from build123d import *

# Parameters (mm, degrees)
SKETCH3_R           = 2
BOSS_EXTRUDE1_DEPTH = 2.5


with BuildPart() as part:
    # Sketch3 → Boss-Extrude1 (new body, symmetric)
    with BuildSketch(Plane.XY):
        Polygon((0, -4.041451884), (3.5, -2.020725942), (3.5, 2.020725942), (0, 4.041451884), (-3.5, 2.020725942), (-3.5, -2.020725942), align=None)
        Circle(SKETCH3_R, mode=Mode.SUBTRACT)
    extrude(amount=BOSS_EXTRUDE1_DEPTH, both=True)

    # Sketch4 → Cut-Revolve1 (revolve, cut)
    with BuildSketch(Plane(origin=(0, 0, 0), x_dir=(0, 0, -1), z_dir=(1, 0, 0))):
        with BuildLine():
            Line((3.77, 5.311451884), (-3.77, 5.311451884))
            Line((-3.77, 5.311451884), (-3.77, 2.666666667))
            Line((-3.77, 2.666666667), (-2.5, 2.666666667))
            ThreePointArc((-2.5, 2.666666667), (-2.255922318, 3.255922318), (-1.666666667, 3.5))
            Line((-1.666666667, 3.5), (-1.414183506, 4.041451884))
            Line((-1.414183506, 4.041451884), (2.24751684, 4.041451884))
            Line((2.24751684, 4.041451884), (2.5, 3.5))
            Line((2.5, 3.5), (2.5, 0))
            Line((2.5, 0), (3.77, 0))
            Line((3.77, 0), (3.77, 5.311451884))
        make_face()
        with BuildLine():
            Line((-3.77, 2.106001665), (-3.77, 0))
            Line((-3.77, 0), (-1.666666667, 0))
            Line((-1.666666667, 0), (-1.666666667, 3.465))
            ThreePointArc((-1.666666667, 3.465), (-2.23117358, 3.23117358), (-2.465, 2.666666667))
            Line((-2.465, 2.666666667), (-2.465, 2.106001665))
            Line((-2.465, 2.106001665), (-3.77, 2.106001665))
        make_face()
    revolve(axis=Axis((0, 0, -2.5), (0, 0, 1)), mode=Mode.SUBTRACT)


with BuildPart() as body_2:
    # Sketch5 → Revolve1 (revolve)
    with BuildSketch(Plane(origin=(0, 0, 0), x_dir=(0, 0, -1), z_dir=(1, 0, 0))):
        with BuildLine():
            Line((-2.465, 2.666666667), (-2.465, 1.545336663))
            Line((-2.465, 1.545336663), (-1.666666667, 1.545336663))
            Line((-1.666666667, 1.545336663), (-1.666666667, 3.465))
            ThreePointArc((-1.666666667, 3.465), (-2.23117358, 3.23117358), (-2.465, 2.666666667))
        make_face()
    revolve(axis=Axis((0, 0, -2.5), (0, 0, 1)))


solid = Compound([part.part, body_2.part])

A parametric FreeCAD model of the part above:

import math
import FreeCAD as App
import Part
import Sketcher
Q = App.Units.Quantity

doc = App.newDocument("Part")
body = doc.addObject("PartDesign::Body", "Body")

sketch1 = doc.addObject("Sketcher::SketchObject", "Sketch")
body.addObject(sketch1)
sketch1.AttachmentSupport = (doc.XY_Plane, [""])
sketch1.MapMode = "FlatFace"
sketch1.addGeometry([
    Part.LineSegment(App.Vector(0, -4, 0), App.Vector(3.5, -2, 0)),
    Part.LineSegment(App.Vector(3.5, -2, 0), App.Vector(3.5, 2, 0)),
    Part.LineSegment(App.Vector(3.5, 2, 0), App.Vector(0, 4, 0)),
    Part.LineSegment(App.Vector(0, 4, 0), App.Vector(-3.5, 2, 0)),
    Part.LineSegment(App.Vector(-3.5, 2, 0), App.Vector(-3.5, -2, 0)),
    Part.LineSegment(App.Vector(-3.5, -2, 0), App.Vector(0, -4, 0)),
    Part.Circle(App.Vector(0, 0, 0), App.Vector(0, 0, 1), 2),
], False)
sketch1.addConstraint([
    Sketcher.Constraint("Coincident", 0, 2, 1, 1),
    Sketcher.Constraint("Coincident", 1, 2, 2, 1),
    Sketcher.Constraint("Coincident", 2, 2, 3, 1),
    Sketcher.Constraint("Coincident", 3, 2, 4, 1),
    Sketcher.Constraint("Coincident", 4, 2, 5, 1),
    Sketcher.Constraint("Coincident", 5, 2, 0, 1),
    Sketcher.Constraint("Vertical", 1),
    Sketcher.Constraint("Vertical", 4),
    Sketcher.Constraint("Coincident", 6, 3, -1, 1),
    Sketcher.Constraint("Symmetric", 0, 2, 3, 2, -1, 1),
    Sketcher.Constraint("Symmetric", 2, 2, 5, 2, -1, 1),
    Sketcher.Constraint("PointOnObject", 2, 2, -2),
    Sketcher.Constraint("Parallel", 2, 5),
    Sketcher.Constraint("Horizontal", 1, 2, 3, 2),
    Sketcher.Constraint("Diameter", 6, 4.0),
    Sketcher.Constraint("Angle", 0, Q("30 deg")),
    Sketcher.Constraint("DistanceX", 3, 2, 1, 2, 7.0),
    Sketcher.Constraint("DistanceY", 1, 1, 1, 2, 4.041452),
])
pad1 = doc.addObject("PartDesign::Pad", "Pad")
body.addObject(pad1)
pad1.Profile = sketch1
pad1.Length = 5
pad1.Midplane = True

sketch2 = doc.addObject("Sketcher::SketchObject", "Sketch001")
body.addObject(sketch2)
sketch2.AttachmentSupport = (doc.YZ_Plane, [""])
sketch2.MapMode = "FlatFace"
sketch2.addGeometry([
    Part.LineSegment(App.Vector(5.3, -3.8, 0), App.Vector(5.3, 3.8, 0)),
    Part.LineSegment(App.Vector(5.3, 3.8, 0), App.Vector(2.7, 3.8, 0)),
    Part.LineSegment(App.Vector(2.7, 3.8, 0), App.Vector(2.7, 2.5, 0)),
    Part.ArcOfCircle(Part.Circle(App.Vector(2.7, 1.7, 0), App.Vector(0, 0, 1), 0.8), math.radians(0), math.radians(90)),
    Part.LineSegment(App.Vector(3.5, 1.7, 0), App.Vector(4, 1.4, 0)),
    Part.LineSegment(App.Vector(4, 1.4, 0), App.Vector(4, -2.2, 0)),
    Part.LineSegment(App.Vector(4, -2.2, 0), App.Vector(3.5, -2.5, 0)),
    Part.LineSegment(App.Vector(3.5, -2.5, 0), App.Vector(0, -2.5, 0)),
    Part.LineSegment(App.Vector(0, -2.5, 0), App.Vector(0, -3.8, 0)),
    Part.LineSegment(App.Vector(0, -3.8, 0), App.Vector(5.3, -3.8, 0)),
    Part.LineSegment(App.Vector(2.1, 3.8, 0), App.Vector(0, 3.8, 0)),
    Part.LineSegment(App.Vector(0, 3.8, 0), App.Vector(0, 1.7, 0)),
    Part.LineSegment(App.Vector(0, 1.7, 0), App.Vector(3.5, 1.7, 0)),
    Part.ArcOfCircle(Part.Circle(App.Vector(2.7, 1.7, 0), App.Vector(0, 0, 1), 0.8), math.radians(0), math.radians(90)),
    Part.LineSegment(App.Vector(2.7, 2.5, 0), App.Vector(2.1, 2.5, 0)),
    Part.LineSegment(App.Vector(2.1, 2.5, 0), App.Vector(2.1, 3.8, 0)),
], False)
sketch2.addConstraint([
    Sketcher.Constraint("Coincident", 0, 2, 1, 1),
    Sketcher.Constraint("Coincident", 1, 2, 2, 1),
    Sketcher.Constraint("Coincident", 2, 2, 3, 2),
    Sketcher.Constraint("Coincident", 3, 1, 4, 1),
    Sketcher.Constraint("Coincident", 4, 2, 5, 1),
    Sketcher.Constraint("Coincident", 5, 2, 6, 1),
    Sketcher.Constraint("Coincident", 6, 2, 7, 1),
    Sketcher.Constraint("Coincident", 7, 2, 8, 1),
    Sketcher.Constraint("Coincident", 8, 2, 9, 1),
    Sketcher.Constraint("Coincident", 9, 2, 0, 1),
    Sketcher.Constraint("Coincident", 10, 2, 11, 1),
    Sketcher.Constraint("Coincident", 11, 2, 12, 1),
    Sketcher.Constraint("Coincident", 12, 2, 13, 1),
    Sketcher.Constraint("Tangent", 13, 2, 14, 1),
    Sketcher.Constraint("Coincident", 14, 2, 15, 1),
    Sketcher.Constraint("Coincident", 15, 2, 10, 1),
    Sketcher.Constraint("Vertical", 0),
    Sketcher.Constraint("Horizontal", 1),
    Sketcher.Constraint("Vertical", 2),
    Sketcher.Constraint("Vertical", 5),
    Sketcher.Constraint("Horizontal", 7),
    Sketcher.Constraint("Vertical", 8),
    Sketcher.Constraint("Horizontal", 9),
    Sketcher.Constraint("Horizontal", 10),
    Sketcher.Constraint("Vertical", 11),
    Sketcher.Constraint("Horizontal", 12),
    Sketcher.Constraint("Horizontal", 14),
    Sketcher.Constraint("Vertical", 15),
    Sketcher.Constraint("Coincident", 13, 3, 3, 3),
    Sketcher.Constraint("Symmetric", 8, 2, 10, 2, -1, 1),
    Sketcher.Constraint("PointOnObject", 7, 2, -2),
    Sketcher.Constraint("Horizontal", 13, 3, 3, 1),
    Sketcher.Constraint("Horizontal", 1, 2, 10, 2),
    Sketcher.Constraint("Horizontal", 3, 1, 11, 2),
    Sketcher.Constraint("Vertical", 13, 3, 1, 2),
    Sketcher.Constraint("Vertical", 3, 1, 6, 2),
    Sketcher.Constraint("Equal", 2, 8),
    Sketcher.Constraint("Equal", 4, 6),
    Sketcher.Constraint("Angle", 4, Q("-25 deg")),
    Sketcher.Constraint("DistanceX", 7, 2, 7, 1, 3.5),
    Sketcher.Constraint("DistanceY", 0, 1, 0, 2, 7.54),
    Sketcher.Constraint("DistanceY", 2, 2, 2, 1, 1.27),
    Sketcher.Constraint("DistanceX", 10, 2, 10, 1, 2.106002),
    Sketcher.Constraint("DistanceX", 12, 1, 12, 2, 3.465),
    Sketcher.Constraint("DistanceX", 4, 2, 0, 2, 1.27),
    Sketcher.Constraint("DistanceY", 5, 2, 5, 1, 3.6617),
    Sketcher.Constraint("Radius", 3, 0.833333),
])
groove = doc.addObject("PartDesign::Groove", "Groove")
body.addObject(groove)
groove.Profile = sketch2
groove.ReferenceAxis = (sketch2, ["V_Axis"])
groove.Angle = 360
body2 = doc.addObject("PartDesign::Body", "Body001")

sketch3 = doc.addObject("Sketcher::SketchObject", "Sketch002")
body2.addObject(sketch3)
sketch3.AttachmentSupport = (doc.getObject("YZ_Plane001"), [""])
sketch3.MapMode = "FlatFace"
sketch3.addGeometry([
    Part.LineSegment(App.Vector(2.7, 2.5, 0), App.Vector(1.5, 2.5, 0)),
    Part.LineSegment(App.Vector(1.5, 2.5, 0), App.Vector(1.5, 1.7, 0)),
    Part.LineSegment(App.Vector(1.5, 1.7, 0), App.Vector(3.5, 1.7, 0)),
    Part.ArcOfCircle(Part.Circle(App.Vector(2.7, 1.7, 0), App.Vector(0, 0, 1), 0.8), math.radians(0), math.radians(90)),
], False)
sketch3.addConstraint([
    Sketcher.Constraint("Coincident", 0, 2, 1, 1),
    Sketcher.Constraint("Coincident", 1, 2, 2, 1),
    Sketcher.Constraint("Coincident", 2, 2, 3, 1),
    Sketcher.Constraint("Tangent", 3, 2, 0, 1),
    Sketcher.Constraint("Horizontal", 0),
    Sketcher.Constraint("Vertical", 1),
    Sketcher.Constraint("Horizontal", 2),
    Sketcher.Constraint("Horizontal", 3, 3, 1, 2),
    Sketcher.Constraint("DistanceY", -1, 1, 0, 2, 2.465),
    Sketcher.Constraint("DistanceX", -1, 1, 2, 2, 3.465),
    Sketcher.Constraint("Radius", 3, 0.798333),
    Sketcher.Constraint("DistanceX", 0, 2, 0, 1, 1.12133),
])
revolution = doc.addObject("PartDesign::Revolution", "Revolution")
body2.addObject(revolution)
revolution.Profile = sketch3
revolution.ReferenceAxis = (sketch3, ["V_Axis"])
revolution.Angle = 360

doc.recompute()
